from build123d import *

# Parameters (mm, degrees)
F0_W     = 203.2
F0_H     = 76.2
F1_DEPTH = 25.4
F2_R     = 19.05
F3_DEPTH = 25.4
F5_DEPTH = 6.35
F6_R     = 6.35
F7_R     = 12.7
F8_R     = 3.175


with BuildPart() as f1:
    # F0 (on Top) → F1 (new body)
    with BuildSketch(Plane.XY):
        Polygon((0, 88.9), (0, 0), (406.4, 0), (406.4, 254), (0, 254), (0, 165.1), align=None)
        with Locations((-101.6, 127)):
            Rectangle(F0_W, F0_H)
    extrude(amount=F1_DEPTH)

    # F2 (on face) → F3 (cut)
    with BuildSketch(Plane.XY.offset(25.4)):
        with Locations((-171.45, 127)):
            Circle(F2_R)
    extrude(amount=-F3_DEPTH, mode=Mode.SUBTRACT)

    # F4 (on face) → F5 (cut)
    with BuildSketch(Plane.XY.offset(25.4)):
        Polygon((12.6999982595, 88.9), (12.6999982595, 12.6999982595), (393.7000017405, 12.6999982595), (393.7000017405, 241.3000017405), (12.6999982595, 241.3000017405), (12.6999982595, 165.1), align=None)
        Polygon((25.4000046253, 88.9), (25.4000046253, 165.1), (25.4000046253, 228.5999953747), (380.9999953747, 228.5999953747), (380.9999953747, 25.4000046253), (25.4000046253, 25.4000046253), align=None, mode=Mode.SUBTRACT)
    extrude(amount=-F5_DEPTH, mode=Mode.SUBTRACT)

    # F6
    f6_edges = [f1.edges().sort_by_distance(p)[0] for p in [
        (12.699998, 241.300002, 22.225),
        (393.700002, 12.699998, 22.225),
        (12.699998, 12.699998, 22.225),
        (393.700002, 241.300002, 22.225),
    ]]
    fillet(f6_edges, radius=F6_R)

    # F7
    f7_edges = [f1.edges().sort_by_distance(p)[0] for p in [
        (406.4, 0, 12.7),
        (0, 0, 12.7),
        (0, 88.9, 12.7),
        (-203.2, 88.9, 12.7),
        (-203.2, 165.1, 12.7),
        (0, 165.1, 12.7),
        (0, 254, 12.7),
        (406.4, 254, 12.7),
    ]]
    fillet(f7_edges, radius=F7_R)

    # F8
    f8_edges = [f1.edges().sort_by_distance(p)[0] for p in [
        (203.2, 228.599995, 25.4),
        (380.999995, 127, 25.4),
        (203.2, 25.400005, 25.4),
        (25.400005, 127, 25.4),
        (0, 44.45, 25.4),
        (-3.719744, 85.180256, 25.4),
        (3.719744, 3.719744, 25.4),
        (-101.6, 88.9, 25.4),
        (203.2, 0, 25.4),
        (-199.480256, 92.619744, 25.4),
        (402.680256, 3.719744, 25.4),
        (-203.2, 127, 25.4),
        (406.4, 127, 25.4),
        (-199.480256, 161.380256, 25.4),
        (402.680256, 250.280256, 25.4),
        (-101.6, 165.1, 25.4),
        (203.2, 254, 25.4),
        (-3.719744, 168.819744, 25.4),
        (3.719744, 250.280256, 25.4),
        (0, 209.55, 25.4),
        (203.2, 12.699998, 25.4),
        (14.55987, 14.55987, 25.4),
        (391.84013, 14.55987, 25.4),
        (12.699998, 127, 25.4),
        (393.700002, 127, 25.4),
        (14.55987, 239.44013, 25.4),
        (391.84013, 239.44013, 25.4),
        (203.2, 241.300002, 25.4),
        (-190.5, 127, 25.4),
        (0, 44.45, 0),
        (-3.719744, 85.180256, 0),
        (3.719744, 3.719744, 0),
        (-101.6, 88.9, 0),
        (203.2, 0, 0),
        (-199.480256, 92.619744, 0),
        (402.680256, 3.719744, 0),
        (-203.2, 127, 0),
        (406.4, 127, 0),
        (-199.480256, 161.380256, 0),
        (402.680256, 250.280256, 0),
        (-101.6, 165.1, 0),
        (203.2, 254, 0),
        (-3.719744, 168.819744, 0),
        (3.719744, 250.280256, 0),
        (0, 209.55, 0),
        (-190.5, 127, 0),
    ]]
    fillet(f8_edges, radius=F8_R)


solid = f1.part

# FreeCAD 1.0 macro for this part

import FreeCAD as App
import Part
import Sketcher
Q = App.Units.Quantity


def edges_at(feature, points):
    """Names of the edges that pass closest to the given points."""
    edges = feature.Shape.Edges
    near = lambda p: min(range(len(edges)), key=lambda i: edges[i].distToShape(Part.Vertex(*p))[0])
    return sorted({f"Edge{near(p) + 1}" for p in points})

doc = App.newDocument("Part")
params = doc.addObject("Spreadsheet::Sheet", "Params")
for row, (alias, value) in enumerate([
    ("sketch1_width", "16 in"),
    ("sketch1_width2", "8 in"),
    ("sketch1_height", "10 in"),
    ("sketch1_height2", "3 in"),
    ("pad1_length", "1 in"),
    ("sketch2_diameter", "1.5 in"),
    ("pocket1_length", "1 in"),
    ("sketch3_width", "15.0000001 in"),
    ("sketch3_height", "9.0000001 in"),
    ("pocket2_length", "0.25 in"),
    ("fillet_radius", "0.25 in"),
    ("fillet2_radius", "0.5 in"),
    ("fillet3_radius", "0.125 in"),
], start=1):
    params.set(f"A{row}", alias)
    params.set(f"B{row}", "=" + value)
    params.setAlias(f"B{row}", alias)

body = doc.addObject("PartDesign::Body", "Body")

# Sketch on XY plane
sketch1 = body.newObject("Sketcher::SketchObject", "Sketch")
sketch1.AttachmentSupport = (doc.getObject("XY_Plane"), [""])
sketch1.MapMode = "FlatFace"
sketch1.addGeometry([
    Part.LineSegment(App.Vector(0, 0, 0), App.Vector(406.4, 0, 0)),  # 0
    Part.LineSegment(App.Vector(406.4, 0, 0), App.Vector(406.4, 254, 0)),  # 1
    Part.LineSegment(App.Vector(406.4, 254, 0), App.Vector(0, 254, 0)),  # 2
    Part.LineSegment(App.Vector(0, 254, 0), App.Vector(0, 165.1, 0)),  # 3
    Part.LineSegment(App.Vector(0, 165.1, 0), App.Vector(-203.2, 165.1, 0)),  # 4
    Part.LineSegment(App.Vector(-203.2, 165.1, 0), App.Vector(-203.2, 88.9, 0)),  # 5
    Part.LineSegment(App.Vector(-203.2, 88.9, 0), App.Vector(0, 88.9, 0)),  # 6
    Part.LineSegment(App.Vector(0, 88.9, 0), App.Vector(0, 0, 0)),  # 7
], False)
sketch1.addConstraint([
    Sketcher.Constraint("Coincident", 0, 2, 1, 1),
    Sketcher.Constraint("Coincident", 1, 2, 2, 1),
    Sketcher.Constraint("Coincident", 2, 2, 3, 1),
    Sketcher.Constraint("Coincident", 3, 2, 4, 1),
    Sketcher.Constraint("Coincident", 4, 2, 5, 1),
    Sketcher.Constraint("Coincident", 5, 2, 6, 1),
    Sketcher.Constraint("Coincident", 6, 2, 7, 1),
    Sketcher.Constraint("Coincident", 7, 2, 0, 1),
    Sketcher.Constraint("Horizontal", 0),
    Sketcher.Constraint("Vertical", 1),
    Sketcher.Constraint("Horizontal", 2),
    Sketcher.Constraint("Vertical", 3),
    Sketcher.Constraint("Horizontal", 4),
    Sketcher.Constraint("Vertical", 5),
    Sketcher.Constraint("Horizontal", 6),
    Sketcher.Constraint("Vertical", 7),
    Sketcher.Constraint("Coincident", 7, 2, -1, 1),
    Sketcher.Constraint("PointOnObject", 2, 2, -2),
    Sketcher.Constraint("Equal", 3, 7),
    Sketcher.Constraint("DistanceX", 0, 1, 0, 2, Q("16 in")),
    Sketcher.Constraint("DistanceX", 4, 2, 4, 1, Q("8 in")),
    Sketcher.Constraint("DistanceY", 1, 1, 1, 2, Q("10 in")),
    Sketcher.Constraint("DistanceY", 5, 2, 5, 1, Q("3 in")),
])
sketch1.setExpression("Constraints[19]", "Params.sketch1_width")
sketch1.setExpression("Constraints[20]", "Params.sketch1_width2")
sketch1.setExpression("Constraints[21]", "Params.sketch1_height")
sketch1.setExpression("Constraints[22]", "Params.sketch1_height2")
pad1 = body.newObject("PartDesign::Pad", "Pad")
pad1.Profile = sketch1
pad1.setExpression("Length", "Params.pad1_length")

# Sketch on XY plane
sketch2 = body.newObject("Sketcher::SketchObject", "Sketch001")
sketch2.AttachmentSupport = (doc.getObject("XY_Plane"), [""])
sketch2.MapMode = "FlatFace"
sketch2.AttachmentOffset = App.Placement(App.Vector(0, 0, 1 * 25.4), App.Rotation())
sketch2.addGeometry(Part.Circle(App.Vector(-171.45, 127, 0), App.Vector(0, 0, 1), 19.05), False)
sketch2.addConstraint([
    Sketcher.Constraint("Diameter", 0, Q("1.5 in")),
    Sketcher.Constraint("DistanceY", -1, 1, 0, 3, Q("5 in")),
    Sketcher.Constraint("DistanceX", 0, 3, -1, 1, Q("6.75 in")),
])
sketch2.setExpression("Constraints[0]", "Params.sketch2_diameter")
pocket1 = body.newObject("PartDesign::Pocket", "Pocket")
pocket1.Profile = sketch2
pocket1.setExpression("Length", "Params.pocket1_length")

# Sketch on XY plane
sketch3 = body.newObject("Sketcher::SketchObject", "Sketch002")
sketch3.AttachmentSupport = (doc.getObject("XY_Plane"), [""])
sketch3.MapMode = "FlatFace"
sketch3.AttachmentOffset = App.Placement(App.Vector(0, 0, 1 * 25.4), App.Rotation())
sketch3.addGeometry([
    Part.LineSegment(App.Vector(12.699998, 12.699998, 0), App.Vector(393.700002, 12.699998, 0)),  # 0
    Part.LineSegment(App.Vector(393.700002, 12.699998, 0), App.Vector(393.700002, 241.300002, 0)),  # 1
    Part.LineSegment(App.Vector(393.700002, 241.300002, 0), App.Vector(12.699998, 241.300002, 0)),  # 2
    Part.LineSegment(App.Vector(12.699998, 241.300002, 0), App.Vector(12.699998, 12.699998, 0)),  # 3
    Part.LineSegment(App.Vector(25.400005, 25.400005, 0), App.Vector(25.400005, 228.599995, 0)),  # 4
    Part.LineSegment(App.Vector(25.400005, 228.599995, 0), App.Vector(380.999995, 228.599995, 0)),  # 5
    Part.LineSegment(App.Vector(380.999995, 228.599995, 0), App.Vector(380.999995, 25.400005, 0)),  # 6
    Part.LineSegment(App.Vector(380.999995, 25.400005, 0), App.Vector(25.400005, 25.400005, 0)),  # 7
], False)
sketch3.addConstraint([
    Sketcher.Constraint("Coincident", 0, 2, 1, 1),
    Sketcher.Constraint("Coincident", 1, 2, 2, 1),
    Sketcher.Constraint("Coincident", 2, 2, 3, 1),
    Sketcher.Constraint("Coincident", 3, 2, 0, 1),
    Sketcher.Constraint("Coincident", 4, 2, 5, 1),
    Sketcher.Constraint("Coincident", 5, 2, 6, 1),
    Sketcher.Constraint("Coincident", 6, 2, 7, 1),
    Sketcher.Constraint("Coincident", 7, 2, 4, 1),
    Sketcher.Constraint("Horizontal", 0),
    Sketcher.Constraint("Vertical", 1),
    Sketcher.Constraint("Horizontal", 2),
    Sketcher.Constraint("Vertical", 3),
    Sketcher.Constraint("Vertical", 4),
    Sketcher.Constraint("Horizontal", 5),
    Sketcher.Constraint("Vertical", 6),
    Sketcher.Constraint("Horizontal", 7),
    Sketcher.Constraint("DistanceX", 0, 1, 0, 2, Q("15.0000001 in")),
    Sketcher.Constraint("DistanceY", 1, 1, 1, 2, Q("9.0000001 in")),
    Sketcher.Constraint("DistanceX", -1, 1, 4, 2, Q("1.0000002 in")),
    Sketcher.Constraint("DistanceY", -1, 1, 4, 2, Q("8.9999998 in")),
    Sketcher.Constraint("DistanceX", -1, 1, 5, 2, Q("14.9999998 in")),
    Sketcher.Constraint("DistanceY", -1, 1, 6, 2, Q("1.0000002 in")),
    Sketcher.Constraint("DistanceX", -1, 1, 0, 2, Q("15.5000001 in")),
    Sketcher.Constraint("DistanceY", -1, 1, 0, 2, Q("0.4999999 in")),
])
sketch3.setExpression("Constraints[16]", "Params.sketch3_width")
sketch3.setExpression("Constraints[17]", "Params.sketch3_height")
pocket2 = body.newObject("PartDesign::Pocket", "Pocket001")
pocket2.Profile = sketch3
pocket2.setExpression("Length", "Params.pocket2_length")
doc.recompute()

fillet = body.newObject("PartDesign::Fillet", "Fillet")
fillet.Base = (pocket2, edges_at(pocket2, [
    (12.7, 241.3, 22.225),
    (393.7, 12.7, 22.225),
    (12.7, 12.7, 22.225),
    (393.7, 241.3, 22.225),
]))
fillet.setExpression("Radius", "Params.fillet_radius")
doc.recompute()

fillet2 = body.newObject("PartDesign::Fillet", "Fillet001")
fillet2.Base = (fillet, edges_at(fillet, [
    (406.4, 0, 12.7),
    (0, 0, 12.7),
    (0, 88.9, 12.7),
    (-203.2, 88.9, 12.7),
    (-203.2, 165.1, 12.7),
    (0, 165.1, 12.7),
    (0, 254, 12.7),
    (406.4, 254, 12.7),
]))
fillet2.setExpression("Radius", "Params.fillet2_radius")
doc.recompute()

fillet3 = body.newObject("PartDesign::Fillet", "Fillet002")
fillet3.Base = (fillet2, edges_at(fillet2, [
    (203.2, 228.6, 25.4),
    (381, 127, 25.4),
    (203.2, 25.4, 25.4),
    (25.4, 127, 25.4),
    (0, 44.45, 25.4),
    (-3.72, 85.18, 25.4),
    (3.72, 3.72, 25.4),
    (-101.6, 88.9, 25.4),
    (203.2, 0, 25.4),
    (-199.48, 92.62, 25.4),
    (402.68, 3.72, 25.4),
    (-203.2, 127, 25.4),
    (406.4, 127, 25.4),
    (-199.48, 161.38, 25.4),
    (402.68, 250.28, 25.4),
    (-101.6, 165.1, 25.4),
    (203.2, 254, 25.4),
    (-3.72, 168.82, 25.4),
    (3.72, 250.28, 25.4),
    (0, 209.55, 25.4),
    (203.2, 12.7, 25.4),
    (14.56, 14.56, 25.4),
    (391.84, 14.56, 25.4),
    (12.7, 127, 25.4),
    (393.7, 127, 25.4),
    (14.56, 239.44, 25.4),
    (391.84, 239.44, 25.4),
    (203.2, 241.3, 25.4),
    (-190.5, 127, 25.4),
    (0, 44.45, 0),
    (-3.72, 85.18, 0),
    (3.72, 3.72, 0),
    (-101.6, 88.9, 0),
    (203.2, 0, 0),
    (-199.48, 92.62, 0),
    (402.68, 3.72, 0),
    (-203.2, 127, 0),
    (406.4, 127, 0),
    (-199.48, 161.38, 0),
    (402.68, 250.28, 0),
    (-101.6, 165.1, 0),
    (203.2, 254, 0),
    (-3.72, 168.82, 0),
    (3.72, 250.28, 0),
    (0, 209.55, 0),
    (-190.5, 127, 0),
]))
fillet3.setExpression("Radius", "Params.fillet3_radius")

doc.recompute()
